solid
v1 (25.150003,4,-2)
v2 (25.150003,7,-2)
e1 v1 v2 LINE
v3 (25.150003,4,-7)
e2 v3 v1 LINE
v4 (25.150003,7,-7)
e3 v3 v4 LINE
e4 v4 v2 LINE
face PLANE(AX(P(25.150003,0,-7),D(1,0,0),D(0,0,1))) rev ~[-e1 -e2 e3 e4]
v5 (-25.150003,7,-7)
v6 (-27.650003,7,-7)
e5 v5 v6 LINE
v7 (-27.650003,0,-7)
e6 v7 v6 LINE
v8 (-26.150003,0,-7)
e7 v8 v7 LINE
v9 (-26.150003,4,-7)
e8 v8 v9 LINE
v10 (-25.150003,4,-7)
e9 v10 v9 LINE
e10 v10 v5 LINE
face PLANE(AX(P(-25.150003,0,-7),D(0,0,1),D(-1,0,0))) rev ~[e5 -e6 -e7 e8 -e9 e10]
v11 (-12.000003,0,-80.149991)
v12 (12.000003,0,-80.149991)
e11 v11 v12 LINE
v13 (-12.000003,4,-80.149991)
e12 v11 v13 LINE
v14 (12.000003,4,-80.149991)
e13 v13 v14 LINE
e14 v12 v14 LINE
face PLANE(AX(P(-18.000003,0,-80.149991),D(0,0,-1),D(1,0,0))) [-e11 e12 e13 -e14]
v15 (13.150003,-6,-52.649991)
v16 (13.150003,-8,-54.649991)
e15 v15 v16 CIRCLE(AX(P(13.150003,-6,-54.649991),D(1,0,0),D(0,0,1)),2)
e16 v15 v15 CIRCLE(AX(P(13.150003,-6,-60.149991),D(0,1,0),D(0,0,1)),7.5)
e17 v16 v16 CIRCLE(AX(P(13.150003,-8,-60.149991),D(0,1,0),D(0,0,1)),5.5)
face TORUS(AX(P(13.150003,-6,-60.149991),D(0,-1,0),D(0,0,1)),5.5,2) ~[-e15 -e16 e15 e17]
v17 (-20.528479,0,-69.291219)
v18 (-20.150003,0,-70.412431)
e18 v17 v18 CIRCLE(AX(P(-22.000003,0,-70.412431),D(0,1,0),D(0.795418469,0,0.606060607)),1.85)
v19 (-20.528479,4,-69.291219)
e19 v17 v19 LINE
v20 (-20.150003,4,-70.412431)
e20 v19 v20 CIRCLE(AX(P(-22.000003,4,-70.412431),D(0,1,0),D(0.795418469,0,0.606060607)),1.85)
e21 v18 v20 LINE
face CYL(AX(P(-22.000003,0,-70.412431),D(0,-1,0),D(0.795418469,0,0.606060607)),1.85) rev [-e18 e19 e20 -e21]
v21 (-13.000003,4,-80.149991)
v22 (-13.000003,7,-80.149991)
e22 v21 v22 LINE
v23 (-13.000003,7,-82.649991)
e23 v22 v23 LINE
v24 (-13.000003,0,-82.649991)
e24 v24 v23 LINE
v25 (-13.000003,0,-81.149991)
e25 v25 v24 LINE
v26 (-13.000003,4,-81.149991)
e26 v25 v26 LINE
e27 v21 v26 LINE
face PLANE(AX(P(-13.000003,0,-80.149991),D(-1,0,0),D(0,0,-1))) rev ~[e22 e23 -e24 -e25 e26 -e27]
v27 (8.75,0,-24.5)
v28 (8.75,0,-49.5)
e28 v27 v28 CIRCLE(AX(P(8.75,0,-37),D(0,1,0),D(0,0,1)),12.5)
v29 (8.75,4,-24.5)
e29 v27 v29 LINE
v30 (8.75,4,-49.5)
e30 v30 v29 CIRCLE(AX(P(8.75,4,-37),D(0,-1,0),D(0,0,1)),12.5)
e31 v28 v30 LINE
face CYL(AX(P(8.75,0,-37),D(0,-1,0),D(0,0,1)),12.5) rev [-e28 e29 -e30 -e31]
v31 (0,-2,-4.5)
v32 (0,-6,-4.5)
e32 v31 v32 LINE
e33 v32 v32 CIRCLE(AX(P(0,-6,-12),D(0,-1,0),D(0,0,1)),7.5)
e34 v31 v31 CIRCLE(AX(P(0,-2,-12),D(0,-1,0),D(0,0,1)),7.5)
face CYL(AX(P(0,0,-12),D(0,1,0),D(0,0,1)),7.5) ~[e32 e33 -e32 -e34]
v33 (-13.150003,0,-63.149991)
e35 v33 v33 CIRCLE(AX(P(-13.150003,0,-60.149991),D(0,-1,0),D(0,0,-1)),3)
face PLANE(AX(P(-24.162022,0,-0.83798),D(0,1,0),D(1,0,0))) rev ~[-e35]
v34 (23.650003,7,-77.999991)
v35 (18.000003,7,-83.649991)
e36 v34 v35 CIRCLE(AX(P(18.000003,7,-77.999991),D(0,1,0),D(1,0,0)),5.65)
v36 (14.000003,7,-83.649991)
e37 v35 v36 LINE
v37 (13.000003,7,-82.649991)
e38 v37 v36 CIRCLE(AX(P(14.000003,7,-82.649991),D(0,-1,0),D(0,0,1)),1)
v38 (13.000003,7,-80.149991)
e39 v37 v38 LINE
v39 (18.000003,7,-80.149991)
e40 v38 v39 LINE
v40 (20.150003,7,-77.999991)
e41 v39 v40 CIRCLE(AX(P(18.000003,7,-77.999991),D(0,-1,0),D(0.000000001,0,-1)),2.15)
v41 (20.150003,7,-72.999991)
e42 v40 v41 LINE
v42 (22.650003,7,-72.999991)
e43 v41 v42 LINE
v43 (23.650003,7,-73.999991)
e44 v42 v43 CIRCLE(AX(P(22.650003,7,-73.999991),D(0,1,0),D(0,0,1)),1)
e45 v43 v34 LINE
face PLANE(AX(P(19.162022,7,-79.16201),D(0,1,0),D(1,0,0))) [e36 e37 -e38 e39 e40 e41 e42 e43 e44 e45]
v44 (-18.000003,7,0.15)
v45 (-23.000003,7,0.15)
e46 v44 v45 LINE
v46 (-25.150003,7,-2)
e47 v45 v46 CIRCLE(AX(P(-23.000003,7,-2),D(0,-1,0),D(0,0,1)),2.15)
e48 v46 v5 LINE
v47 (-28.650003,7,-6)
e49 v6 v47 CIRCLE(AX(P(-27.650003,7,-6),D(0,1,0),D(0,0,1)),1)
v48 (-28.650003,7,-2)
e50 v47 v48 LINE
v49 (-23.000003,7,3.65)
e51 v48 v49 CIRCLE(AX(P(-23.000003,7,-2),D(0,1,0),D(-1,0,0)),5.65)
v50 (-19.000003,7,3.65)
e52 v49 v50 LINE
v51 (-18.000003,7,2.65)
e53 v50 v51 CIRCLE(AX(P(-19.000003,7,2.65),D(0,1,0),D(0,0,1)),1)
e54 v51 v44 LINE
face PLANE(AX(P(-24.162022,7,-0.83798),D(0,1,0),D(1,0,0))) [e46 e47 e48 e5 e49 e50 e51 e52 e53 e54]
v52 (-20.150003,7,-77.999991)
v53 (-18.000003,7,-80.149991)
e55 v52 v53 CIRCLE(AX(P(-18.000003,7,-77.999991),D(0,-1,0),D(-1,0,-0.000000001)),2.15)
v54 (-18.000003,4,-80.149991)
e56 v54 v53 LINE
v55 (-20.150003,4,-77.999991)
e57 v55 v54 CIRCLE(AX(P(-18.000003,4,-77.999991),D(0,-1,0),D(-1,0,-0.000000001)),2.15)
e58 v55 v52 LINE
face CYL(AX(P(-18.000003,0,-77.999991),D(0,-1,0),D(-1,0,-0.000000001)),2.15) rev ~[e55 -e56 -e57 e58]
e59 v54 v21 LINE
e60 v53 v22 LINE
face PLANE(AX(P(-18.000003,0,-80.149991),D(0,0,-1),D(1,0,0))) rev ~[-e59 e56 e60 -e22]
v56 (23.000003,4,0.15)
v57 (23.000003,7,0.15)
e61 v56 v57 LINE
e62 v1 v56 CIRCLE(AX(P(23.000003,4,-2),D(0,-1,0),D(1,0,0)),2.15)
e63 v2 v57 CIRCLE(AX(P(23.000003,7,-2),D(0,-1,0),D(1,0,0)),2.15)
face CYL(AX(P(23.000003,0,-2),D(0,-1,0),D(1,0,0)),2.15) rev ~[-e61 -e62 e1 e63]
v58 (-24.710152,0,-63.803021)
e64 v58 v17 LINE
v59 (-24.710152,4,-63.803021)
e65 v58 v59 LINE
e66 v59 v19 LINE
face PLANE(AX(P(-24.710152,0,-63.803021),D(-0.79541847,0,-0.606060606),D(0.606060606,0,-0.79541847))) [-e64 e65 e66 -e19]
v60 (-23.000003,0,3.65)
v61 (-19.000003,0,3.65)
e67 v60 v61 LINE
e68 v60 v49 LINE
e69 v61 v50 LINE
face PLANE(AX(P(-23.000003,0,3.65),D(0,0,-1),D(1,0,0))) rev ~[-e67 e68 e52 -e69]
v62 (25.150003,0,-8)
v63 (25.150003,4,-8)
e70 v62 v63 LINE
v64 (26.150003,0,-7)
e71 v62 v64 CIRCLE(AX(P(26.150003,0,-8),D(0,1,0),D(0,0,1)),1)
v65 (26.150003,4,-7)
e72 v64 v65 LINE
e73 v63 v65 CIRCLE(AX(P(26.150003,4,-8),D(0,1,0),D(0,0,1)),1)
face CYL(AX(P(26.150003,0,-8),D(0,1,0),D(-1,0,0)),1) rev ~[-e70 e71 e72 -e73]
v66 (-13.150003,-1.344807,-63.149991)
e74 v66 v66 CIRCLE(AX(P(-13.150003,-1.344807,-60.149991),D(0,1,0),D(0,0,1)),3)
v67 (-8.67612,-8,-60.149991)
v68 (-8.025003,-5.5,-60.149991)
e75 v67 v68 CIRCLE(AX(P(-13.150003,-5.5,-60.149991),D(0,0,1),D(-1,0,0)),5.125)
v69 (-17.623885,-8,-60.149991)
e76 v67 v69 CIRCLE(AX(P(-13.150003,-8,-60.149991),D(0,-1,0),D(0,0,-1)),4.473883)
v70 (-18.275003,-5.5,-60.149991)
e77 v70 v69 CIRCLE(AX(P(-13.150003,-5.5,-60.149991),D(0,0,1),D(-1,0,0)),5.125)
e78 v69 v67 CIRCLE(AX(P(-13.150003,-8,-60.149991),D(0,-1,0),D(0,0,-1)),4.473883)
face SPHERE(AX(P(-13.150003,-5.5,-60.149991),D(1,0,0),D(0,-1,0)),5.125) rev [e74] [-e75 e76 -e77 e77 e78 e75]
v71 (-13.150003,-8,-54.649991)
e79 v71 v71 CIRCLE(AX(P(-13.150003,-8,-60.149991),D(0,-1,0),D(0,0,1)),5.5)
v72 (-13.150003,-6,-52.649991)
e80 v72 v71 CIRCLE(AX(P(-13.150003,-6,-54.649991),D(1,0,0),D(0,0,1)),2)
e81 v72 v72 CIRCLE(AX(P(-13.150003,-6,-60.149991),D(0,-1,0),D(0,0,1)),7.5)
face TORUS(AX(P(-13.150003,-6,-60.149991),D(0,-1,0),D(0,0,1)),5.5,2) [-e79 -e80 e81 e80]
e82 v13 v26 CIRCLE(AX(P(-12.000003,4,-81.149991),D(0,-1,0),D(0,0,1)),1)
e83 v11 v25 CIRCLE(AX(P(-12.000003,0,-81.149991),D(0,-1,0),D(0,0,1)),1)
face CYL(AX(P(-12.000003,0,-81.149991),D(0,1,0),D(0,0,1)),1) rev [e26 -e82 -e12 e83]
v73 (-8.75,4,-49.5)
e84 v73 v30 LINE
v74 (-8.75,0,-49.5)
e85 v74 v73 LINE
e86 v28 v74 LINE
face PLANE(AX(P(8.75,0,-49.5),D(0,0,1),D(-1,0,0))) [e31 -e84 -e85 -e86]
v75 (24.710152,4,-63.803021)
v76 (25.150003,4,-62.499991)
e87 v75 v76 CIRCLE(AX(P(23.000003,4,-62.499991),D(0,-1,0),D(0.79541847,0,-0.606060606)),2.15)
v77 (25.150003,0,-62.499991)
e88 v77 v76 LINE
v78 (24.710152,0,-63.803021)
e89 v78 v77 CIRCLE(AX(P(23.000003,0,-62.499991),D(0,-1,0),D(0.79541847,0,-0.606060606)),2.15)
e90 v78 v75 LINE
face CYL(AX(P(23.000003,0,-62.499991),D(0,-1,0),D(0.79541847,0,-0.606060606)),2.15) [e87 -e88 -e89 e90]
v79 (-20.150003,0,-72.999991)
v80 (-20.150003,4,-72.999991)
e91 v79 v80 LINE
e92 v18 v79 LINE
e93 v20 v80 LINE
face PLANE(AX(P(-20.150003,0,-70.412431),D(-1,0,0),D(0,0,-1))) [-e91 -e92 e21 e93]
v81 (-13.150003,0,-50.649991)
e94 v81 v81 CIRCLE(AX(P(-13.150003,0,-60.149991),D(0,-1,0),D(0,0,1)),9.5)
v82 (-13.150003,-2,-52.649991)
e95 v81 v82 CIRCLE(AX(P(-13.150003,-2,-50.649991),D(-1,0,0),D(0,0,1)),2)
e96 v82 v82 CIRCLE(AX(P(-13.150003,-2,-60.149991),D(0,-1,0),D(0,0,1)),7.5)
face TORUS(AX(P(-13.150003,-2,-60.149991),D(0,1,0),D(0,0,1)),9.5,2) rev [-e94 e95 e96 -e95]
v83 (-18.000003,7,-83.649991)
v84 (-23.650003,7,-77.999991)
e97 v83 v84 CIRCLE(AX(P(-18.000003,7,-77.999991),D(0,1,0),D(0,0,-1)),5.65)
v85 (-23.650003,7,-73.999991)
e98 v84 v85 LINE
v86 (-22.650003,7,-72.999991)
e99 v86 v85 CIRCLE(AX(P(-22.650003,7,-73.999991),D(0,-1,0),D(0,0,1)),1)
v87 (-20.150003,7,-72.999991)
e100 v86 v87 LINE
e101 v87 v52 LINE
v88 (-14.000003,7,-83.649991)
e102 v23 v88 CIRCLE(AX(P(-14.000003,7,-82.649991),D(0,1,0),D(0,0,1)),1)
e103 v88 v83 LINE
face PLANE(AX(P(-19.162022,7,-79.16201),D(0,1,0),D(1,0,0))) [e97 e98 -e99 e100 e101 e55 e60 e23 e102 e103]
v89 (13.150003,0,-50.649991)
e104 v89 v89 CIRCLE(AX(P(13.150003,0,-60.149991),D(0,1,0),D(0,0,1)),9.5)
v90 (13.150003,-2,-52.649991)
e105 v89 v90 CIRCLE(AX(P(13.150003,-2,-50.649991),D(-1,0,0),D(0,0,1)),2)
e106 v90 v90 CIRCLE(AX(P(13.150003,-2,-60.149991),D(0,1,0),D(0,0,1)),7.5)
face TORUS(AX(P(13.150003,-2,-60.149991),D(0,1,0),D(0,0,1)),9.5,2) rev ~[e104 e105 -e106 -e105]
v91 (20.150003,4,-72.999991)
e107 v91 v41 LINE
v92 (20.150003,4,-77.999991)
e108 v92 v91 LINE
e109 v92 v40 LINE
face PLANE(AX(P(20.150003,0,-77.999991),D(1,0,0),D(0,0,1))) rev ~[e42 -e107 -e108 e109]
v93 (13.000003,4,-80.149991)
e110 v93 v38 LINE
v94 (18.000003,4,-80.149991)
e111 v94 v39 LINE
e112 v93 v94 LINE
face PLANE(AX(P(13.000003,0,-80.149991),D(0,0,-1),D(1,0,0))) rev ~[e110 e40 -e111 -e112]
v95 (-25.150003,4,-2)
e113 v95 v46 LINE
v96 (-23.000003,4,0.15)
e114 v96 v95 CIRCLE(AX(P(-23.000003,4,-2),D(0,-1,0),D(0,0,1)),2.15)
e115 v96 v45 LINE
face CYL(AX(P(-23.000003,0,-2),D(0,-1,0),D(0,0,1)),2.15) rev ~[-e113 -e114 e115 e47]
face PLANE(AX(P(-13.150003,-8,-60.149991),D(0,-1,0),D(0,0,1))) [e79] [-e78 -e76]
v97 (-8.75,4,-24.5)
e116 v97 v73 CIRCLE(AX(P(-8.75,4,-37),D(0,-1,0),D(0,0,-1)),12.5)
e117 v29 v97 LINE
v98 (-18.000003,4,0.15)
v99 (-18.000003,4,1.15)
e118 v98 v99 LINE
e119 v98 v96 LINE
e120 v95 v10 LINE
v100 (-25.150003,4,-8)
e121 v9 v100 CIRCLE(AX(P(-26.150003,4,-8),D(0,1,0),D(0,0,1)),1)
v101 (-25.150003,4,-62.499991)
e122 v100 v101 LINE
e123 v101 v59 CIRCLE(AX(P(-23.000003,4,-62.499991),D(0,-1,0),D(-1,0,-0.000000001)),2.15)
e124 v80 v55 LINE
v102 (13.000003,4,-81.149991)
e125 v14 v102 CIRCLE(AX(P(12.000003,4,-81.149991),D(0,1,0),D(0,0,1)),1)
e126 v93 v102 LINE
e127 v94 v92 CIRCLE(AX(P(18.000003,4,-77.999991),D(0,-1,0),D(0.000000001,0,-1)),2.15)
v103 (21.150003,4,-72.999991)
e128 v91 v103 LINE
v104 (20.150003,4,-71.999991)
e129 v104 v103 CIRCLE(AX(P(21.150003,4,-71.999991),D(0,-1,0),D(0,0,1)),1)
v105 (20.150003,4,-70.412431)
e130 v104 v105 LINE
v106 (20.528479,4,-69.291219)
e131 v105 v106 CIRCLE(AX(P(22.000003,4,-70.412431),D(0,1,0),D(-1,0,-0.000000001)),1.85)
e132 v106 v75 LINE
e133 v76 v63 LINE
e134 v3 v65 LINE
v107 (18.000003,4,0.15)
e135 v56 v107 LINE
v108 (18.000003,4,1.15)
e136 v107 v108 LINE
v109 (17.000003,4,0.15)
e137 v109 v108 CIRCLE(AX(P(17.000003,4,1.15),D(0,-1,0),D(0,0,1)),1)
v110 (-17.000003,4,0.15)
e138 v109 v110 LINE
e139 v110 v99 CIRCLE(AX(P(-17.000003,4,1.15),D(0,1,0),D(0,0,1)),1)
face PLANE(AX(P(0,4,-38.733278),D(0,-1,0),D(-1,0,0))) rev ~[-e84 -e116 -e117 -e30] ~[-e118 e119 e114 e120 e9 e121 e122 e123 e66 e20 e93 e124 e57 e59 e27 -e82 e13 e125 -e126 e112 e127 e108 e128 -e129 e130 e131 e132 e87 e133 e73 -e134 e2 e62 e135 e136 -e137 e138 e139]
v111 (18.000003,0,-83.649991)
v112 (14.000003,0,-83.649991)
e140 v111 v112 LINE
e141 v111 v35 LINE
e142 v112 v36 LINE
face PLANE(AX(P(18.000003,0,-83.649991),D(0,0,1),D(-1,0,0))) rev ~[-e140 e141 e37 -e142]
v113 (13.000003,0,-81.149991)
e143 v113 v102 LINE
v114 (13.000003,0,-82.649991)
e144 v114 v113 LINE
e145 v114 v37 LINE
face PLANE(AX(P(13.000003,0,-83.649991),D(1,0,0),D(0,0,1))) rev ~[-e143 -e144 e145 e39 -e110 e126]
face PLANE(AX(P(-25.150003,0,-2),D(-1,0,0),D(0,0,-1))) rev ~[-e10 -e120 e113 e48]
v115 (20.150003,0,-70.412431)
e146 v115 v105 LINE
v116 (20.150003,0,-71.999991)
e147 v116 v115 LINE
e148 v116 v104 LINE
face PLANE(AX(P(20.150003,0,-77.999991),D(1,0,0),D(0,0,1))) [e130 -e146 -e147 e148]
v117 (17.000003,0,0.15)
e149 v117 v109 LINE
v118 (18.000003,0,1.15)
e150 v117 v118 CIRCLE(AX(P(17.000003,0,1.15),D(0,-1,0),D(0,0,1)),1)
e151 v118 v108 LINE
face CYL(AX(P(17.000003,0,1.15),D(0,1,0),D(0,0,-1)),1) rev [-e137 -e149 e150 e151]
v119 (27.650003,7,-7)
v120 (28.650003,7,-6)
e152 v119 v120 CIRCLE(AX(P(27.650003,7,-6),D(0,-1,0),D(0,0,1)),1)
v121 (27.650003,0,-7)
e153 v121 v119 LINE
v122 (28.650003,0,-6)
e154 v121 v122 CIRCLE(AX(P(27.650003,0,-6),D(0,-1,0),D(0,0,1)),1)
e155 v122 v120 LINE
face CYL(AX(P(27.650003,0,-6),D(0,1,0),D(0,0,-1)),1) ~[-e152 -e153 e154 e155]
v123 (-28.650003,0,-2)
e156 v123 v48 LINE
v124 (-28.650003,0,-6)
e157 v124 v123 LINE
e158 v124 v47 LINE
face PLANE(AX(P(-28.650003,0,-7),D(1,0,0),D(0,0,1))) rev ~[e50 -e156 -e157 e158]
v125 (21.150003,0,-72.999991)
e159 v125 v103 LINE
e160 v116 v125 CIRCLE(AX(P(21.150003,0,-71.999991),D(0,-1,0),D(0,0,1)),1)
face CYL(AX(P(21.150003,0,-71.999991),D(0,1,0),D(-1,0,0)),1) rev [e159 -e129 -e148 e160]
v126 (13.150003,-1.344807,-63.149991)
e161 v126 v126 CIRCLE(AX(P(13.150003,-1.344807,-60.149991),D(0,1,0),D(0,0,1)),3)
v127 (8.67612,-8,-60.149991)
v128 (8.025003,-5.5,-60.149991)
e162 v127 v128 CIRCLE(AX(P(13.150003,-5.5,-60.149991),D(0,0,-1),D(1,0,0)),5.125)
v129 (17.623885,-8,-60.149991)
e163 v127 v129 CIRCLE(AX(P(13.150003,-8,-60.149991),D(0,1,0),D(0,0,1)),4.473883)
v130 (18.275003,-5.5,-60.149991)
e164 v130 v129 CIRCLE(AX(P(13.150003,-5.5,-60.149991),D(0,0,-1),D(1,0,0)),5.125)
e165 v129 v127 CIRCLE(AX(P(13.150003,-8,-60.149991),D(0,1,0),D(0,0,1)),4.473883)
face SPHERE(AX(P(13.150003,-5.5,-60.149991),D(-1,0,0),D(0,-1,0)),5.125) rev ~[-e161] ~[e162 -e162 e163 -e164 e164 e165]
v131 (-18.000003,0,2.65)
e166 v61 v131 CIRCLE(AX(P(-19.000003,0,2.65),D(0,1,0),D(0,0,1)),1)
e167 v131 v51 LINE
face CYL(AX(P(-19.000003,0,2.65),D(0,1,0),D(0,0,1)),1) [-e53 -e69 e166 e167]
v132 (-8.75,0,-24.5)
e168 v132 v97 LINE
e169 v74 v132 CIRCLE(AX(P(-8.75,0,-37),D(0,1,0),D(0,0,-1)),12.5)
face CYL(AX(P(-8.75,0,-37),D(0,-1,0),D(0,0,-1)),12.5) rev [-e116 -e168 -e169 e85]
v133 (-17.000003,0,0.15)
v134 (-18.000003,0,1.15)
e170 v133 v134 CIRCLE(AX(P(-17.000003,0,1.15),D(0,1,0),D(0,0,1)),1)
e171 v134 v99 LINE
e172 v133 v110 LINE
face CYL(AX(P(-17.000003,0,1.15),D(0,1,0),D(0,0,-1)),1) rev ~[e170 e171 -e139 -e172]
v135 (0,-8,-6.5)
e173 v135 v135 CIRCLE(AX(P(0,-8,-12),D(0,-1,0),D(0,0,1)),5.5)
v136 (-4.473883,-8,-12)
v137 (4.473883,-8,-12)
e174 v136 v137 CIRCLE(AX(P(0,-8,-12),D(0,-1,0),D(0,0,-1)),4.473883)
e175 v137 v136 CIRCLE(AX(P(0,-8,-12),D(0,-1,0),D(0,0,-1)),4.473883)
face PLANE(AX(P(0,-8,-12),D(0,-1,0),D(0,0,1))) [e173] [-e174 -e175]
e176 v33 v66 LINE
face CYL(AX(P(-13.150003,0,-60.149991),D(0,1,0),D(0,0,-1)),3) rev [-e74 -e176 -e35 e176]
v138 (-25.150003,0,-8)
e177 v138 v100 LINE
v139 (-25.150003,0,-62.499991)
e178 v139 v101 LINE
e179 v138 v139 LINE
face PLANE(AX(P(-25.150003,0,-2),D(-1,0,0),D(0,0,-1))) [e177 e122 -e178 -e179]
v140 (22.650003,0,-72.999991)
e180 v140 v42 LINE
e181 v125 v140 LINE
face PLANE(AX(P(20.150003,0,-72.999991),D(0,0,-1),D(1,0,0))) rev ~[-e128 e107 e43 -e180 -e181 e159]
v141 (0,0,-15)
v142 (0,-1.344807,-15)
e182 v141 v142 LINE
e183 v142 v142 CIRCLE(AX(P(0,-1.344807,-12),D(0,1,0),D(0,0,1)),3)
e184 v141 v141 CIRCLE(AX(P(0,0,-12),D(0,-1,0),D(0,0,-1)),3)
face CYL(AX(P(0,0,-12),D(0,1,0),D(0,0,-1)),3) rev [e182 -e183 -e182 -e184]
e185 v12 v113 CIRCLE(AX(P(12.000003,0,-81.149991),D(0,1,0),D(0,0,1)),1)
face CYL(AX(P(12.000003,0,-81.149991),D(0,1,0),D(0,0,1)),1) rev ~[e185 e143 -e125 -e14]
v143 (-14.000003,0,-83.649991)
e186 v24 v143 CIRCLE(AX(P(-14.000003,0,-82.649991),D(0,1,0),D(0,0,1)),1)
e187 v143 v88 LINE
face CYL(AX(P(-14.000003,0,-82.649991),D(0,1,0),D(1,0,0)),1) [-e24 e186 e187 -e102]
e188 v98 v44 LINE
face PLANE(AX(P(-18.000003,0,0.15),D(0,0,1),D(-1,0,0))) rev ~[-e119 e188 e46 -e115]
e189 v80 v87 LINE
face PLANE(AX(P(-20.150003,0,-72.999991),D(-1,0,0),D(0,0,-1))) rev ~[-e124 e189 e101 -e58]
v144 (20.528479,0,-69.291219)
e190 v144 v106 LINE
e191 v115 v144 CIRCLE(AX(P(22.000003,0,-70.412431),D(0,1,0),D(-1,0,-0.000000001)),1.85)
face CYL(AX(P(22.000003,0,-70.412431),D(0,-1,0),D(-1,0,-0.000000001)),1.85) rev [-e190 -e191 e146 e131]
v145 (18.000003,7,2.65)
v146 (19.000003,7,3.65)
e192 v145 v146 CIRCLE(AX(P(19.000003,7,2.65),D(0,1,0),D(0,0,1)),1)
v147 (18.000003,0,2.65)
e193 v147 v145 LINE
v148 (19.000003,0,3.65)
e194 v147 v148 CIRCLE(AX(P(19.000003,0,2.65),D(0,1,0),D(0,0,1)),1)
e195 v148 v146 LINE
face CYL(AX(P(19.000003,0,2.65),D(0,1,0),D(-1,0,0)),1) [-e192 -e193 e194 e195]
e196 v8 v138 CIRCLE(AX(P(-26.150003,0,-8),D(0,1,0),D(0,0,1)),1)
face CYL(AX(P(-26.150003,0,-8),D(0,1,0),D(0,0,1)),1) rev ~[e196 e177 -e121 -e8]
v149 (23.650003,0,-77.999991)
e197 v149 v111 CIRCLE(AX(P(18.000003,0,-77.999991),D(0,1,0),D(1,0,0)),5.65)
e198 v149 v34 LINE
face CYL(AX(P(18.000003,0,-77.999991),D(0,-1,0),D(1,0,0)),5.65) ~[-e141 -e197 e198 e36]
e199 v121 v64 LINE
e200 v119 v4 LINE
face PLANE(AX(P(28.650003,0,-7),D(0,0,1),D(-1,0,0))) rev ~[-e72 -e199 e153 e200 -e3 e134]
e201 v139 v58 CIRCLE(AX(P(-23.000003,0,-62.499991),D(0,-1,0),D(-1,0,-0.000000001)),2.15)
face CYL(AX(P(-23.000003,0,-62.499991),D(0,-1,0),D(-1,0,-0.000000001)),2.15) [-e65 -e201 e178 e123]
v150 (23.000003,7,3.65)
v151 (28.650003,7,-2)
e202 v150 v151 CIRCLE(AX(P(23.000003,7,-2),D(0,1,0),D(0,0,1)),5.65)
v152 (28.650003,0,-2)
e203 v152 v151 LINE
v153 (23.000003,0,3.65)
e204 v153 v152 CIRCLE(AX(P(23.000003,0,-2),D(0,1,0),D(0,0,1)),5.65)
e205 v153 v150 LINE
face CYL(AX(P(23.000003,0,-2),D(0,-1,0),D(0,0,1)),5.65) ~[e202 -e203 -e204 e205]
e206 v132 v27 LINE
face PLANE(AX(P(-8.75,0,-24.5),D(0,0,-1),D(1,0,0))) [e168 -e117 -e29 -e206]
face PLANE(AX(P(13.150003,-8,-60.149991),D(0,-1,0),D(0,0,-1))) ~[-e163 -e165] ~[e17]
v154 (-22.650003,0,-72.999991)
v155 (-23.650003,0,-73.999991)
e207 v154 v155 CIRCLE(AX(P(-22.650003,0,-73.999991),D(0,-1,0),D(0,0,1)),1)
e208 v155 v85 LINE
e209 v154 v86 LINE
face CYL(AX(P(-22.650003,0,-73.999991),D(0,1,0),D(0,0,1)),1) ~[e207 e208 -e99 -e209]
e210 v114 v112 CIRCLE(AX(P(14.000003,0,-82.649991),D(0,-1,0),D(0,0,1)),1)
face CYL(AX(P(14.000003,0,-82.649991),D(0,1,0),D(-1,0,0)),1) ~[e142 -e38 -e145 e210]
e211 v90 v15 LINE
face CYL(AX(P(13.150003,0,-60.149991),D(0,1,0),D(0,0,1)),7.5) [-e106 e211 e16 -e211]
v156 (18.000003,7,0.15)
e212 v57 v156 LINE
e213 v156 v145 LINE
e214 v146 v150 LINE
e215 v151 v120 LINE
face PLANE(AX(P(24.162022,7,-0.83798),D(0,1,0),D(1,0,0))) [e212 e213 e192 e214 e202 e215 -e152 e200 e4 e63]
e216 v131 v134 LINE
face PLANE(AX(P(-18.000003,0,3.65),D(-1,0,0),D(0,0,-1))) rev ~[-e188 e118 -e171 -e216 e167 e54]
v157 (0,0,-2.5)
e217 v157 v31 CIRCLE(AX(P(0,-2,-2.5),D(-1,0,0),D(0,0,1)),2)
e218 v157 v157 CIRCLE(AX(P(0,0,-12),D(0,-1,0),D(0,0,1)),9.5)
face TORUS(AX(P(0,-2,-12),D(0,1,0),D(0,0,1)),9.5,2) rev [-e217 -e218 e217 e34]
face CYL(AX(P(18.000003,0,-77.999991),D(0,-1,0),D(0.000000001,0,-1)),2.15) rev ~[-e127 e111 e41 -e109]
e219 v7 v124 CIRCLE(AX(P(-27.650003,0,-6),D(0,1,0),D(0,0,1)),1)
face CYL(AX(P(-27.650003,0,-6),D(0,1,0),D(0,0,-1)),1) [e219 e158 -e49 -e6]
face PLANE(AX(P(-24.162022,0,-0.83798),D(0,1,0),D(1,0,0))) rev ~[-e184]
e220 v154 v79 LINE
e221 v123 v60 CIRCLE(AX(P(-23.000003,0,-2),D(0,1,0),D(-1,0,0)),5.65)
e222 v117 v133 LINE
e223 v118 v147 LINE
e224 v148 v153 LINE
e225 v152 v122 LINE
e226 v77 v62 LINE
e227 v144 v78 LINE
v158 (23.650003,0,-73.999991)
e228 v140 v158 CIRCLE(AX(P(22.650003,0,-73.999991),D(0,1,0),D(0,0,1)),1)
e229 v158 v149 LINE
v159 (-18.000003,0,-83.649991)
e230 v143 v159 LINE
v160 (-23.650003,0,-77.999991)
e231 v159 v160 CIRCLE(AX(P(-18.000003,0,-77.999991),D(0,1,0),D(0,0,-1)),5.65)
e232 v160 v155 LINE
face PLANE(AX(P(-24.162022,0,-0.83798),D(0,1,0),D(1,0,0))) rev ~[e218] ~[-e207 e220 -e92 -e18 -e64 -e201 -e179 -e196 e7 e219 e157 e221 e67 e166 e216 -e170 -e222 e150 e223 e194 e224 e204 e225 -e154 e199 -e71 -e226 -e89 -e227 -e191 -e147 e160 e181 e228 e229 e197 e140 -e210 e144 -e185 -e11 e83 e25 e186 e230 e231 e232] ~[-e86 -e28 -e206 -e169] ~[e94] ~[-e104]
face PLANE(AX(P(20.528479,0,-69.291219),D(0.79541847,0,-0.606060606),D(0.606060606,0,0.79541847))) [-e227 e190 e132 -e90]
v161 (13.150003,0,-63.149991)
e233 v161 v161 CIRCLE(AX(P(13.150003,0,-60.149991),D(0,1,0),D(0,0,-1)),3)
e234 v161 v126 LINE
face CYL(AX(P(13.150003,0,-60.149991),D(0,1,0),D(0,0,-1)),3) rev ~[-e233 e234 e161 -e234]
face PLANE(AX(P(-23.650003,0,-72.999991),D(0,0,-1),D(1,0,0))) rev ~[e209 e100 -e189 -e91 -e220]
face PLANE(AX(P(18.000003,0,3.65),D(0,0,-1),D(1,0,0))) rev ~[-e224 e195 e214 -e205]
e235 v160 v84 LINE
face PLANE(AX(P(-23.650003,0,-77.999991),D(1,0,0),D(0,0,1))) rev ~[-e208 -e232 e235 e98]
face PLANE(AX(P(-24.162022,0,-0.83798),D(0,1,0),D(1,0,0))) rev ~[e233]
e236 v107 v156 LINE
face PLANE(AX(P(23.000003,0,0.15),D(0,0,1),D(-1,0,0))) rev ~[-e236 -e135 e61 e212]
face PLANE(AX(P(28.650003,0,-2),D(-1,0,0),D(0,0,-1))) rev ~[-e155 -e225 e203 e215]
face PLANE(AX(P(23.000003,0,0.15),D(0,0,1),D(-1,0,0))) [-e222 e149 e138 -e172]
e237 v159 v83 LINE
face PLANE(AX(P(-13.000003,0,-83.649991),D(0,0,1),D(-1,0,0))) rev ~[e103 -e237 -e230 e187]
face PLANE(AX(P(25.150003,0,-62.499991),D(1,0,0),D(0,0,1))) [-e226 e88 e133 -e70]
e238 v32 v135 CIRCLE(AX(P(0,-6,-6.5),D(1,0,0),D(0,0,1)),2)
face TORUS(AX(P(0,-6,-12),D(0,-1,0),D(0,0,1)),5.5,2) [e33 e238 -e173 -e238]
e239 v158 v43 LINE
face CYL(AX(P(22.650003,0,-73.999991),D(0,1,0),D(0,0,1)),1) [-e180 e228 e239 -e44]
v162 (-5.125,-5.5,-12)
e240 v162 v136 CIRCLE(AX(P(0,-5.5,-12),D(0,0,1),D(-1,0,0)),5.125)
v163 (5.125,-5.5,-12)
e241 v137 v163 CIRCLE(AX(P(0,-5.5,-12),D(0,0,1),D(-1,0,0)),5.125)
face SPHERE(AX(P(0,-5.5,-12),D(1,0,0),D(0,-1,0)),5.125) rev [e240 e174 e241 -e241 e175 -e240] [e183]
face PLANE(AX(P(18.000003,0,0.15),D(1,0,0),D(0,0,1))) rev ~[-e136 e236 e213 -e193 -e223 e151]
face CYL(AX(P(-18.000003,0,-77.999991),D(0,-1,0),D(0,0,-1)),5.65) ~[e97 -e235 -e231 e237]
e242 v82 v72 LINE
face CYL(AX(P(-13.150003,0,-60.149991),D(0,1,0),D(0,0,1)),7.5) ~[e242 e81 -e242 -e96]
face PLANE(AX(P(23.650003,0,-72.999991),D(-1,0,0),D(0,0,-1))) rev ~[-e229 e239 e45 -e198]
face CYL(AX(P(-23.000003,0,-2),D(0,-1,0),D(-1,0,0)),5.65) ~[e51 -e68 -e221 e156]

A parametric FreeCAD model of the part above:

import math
import FreeCAD as App
import Part
import Sketcher
Q = App.Units.Quantity


def edges_at(feature, points):
    """Names of the edges that pass closest to the given points."""
    edges = feature.Shape.Edges
    near = lambda p: min(range(len(edges)), key=lambda i: edges[i].distToShape(Part.Vertex(*p))[0])
    return sorted({f"Edge{near(p) + 1}" for p in points})

doc = App.newDocument("Part")
body = doc.addObject("PartDesign::Body", "Body")

# Sketch on XZ plane
sketch1 = body.newObject("Sketcher::SketchObject", "Sketch")
sketch1.AttachmentSupport = (doc.getObject("XZ_Plane"), [""])
sketch1.MapMode = "FlatFace"
sketch1.addGeometry(Part.LineSegment(App.Vector(18, -80.1, 0), App.Vector(-18, -80.1, 0)), False)
sketch1.addGeometry(Part.ArcOfCircle(Part.Circle(App.Vector(-18, -78, 0), App.Vector(0, 0, 1), 2.2), math.radians(-180), math.radians(-90)), False)
sketch1.addGeometry(Part.LineSegment(App.Vector(-20.2, -78, 0), App.Vector(-20.2, -70.4, 0)), False)
sketch1.addGeometry(Part.ArcOfCircle(Part.Circle(App.Vector(-22, -70.4, 0), App.Vector(0, 0, 1), 1.8), math.radians(0), math.radians(37)), False)
sketch1.addGeometry(Part.LineSegment(App.Vector(-20.5, -69.3, 0), App.Vector(-24.7, -63.8, 0)), False)
sketch1.addGeometry(Part.ArcOfCircle(Part.Circle(App.Vector(-23, -62.5, 0), App.Vector(0, 0, 1), 2.2), math.radians(-180), math.radians(-143)), False)
sketch1.addGeometry(Part.LineSegment(App.Vector(-25.2, -62.5, 0), App.Vector(-25.2, -2, 0)), False)
sketch1.addGeometry(Part.ArcOfCircle(Part.Circle(App.Vector(-23, -2, 0), App.Vector(0, 0, 1), 2.1), math.radians(90), math.radians(180)), False)
sketch1.addGeometry(Part.LineSegment(App.Vector(-23, 0.1, 0), App.Vector(23, 0.1, 0)), False)
sketch1.addGeometry(Part.ArcOfCircle(Part.Circle(App.Vector(23, -2, 0), App.Vector(0, 0, 1), 2.1), math.radians(0), math.radians(90)), False)
sketch1.addGeometry(Part.LineSegment(App.Vector(25.2, -2, 0), App.Vector(25.2, -62.5, 0)), False)
sketch1.addGeometry(Part.ArcOfCircle(Part.Circle(App.Vector(23, -62.5, 0), App.Vector(0, 0, 1), 2.2), math.radians(-37), math.radians(0)), False)
sketch1.addGeometry(Part.LineSegment(App.Vector(24.7, -63.8, 0), App.Vector(20.5, -69.3, 0)), False)
sketch1.addGeometry(Part.ArcOfCircle(Part.Circle(App.Vector(22, -70.4, 0), App.Vector(0, 0, 1), 1.8), math.radians(143), math.radians(180)), False)
sketch1.addGeometry(Part.LineSegment(App.Vector(20.2, -70.4, 0), App.Vector(20.2, -78, 0)), False)
sketch1.addGeometry(Part.ArcOfCircle(Part.Circle(App.Vector(18, -78, 0), App.Vector(0, 0, 1), 2.2), math.radians(-90), math.radians(0)), False)
sketch1.addConstraint(Sketcher.Constraint("Tangent", 0, 2, 1, 2))
sketch1.addConstraint(Sketcher.Constraint("Tangent", 1, 1, 2, 1))
sketch1.addConstraint(Sketcher.Constraint("Tangent", 2, 2, 3, 1))
sketch1.addConstraint(Sketcher.Constraint("Tangent", 3, 2, 4, 1))
sketch1.addConstraint(Sketcher.Constraint("Tangent", 4, 2, 5, 2))
sketch1.addConstraint(Sketcher.Constraint("Tangent", 5, 1, 6, 1))
sketch1.addConstraint(Sketcher.Constraint("Tangent", 6, 2, 7, 2))
sketch1.addConstraint(Sketcher.Constraint("Tangent", 7, 1, 8, 1))
sketch1.addConstraint(Sketcher.Constraint("Tangent", 8, 2, 9, 2))
sketch1.addConstraint(Sketcher.Constraint("Tangent", 9, 1, 10, 1))
sketch1.addConstraint(Sketcher.Constraint("Tangent", 10, 2, 11, 2))
sketch1.addConstraint(Sketcher.Constraint("Tangent", 11, 1, 12, 1))
sketch1.addConstraint(Sketcher.Constraint("Tangent", 12, 2, 13, 1))
sketch1.addConstraint(Sketcher.Constraint("Tangent", 13, 2, 14, 1))
sketch1.addConstraint(Sketcher.Constraint("Tangent", 14, 2, 15, 2))
sketch1.addConstraint(Sketcher.Constraint("Tangent", 15, 1, 0, 1))
sketch1.addConstraint(Sketcher.Constraint("Horizontal", 0))
sketch1.addConstraint(Sketcher.Constraint("Vertical", 2))
sketch1.addConstraint(Sketcher.Constraint("Vertical", 6))
sketch1.addConstraint(Sketcher.Constraint("Horizontal", 8))
sketch1.addConstraint(Sketcher.Constraint("Vertical", 10))
sketch1.addConstraint(Sketcher.Constraint("Vertical", 14))
sketch1.addConstraint(Sketcher.Constraint("Equal", 1, 5))
sketch1.addConstraint(Sketcher.Constraint("Equal", 5, 7))
sketch1.addConstraint(Sketcher.Constraint("Equal", 7, 9))
sketch1.addConstraint(Sketcher.Constraint("Equal", 9, 11))
sketch1.addConstraint(Sketcher.Constraint("Equal", 3, 13))
sketch1.addConstraint(Sketcher.Constraint("Equal", 11, 15))
sketch1.addConstraint(Sketcher.Constraint("Symmetric", 5, 3, 11, 3, -2))
sketch1.addConstraint(Sketcher.Constraint("Symmetric", 3, 3, 13, 3, -2))
sketch1.addConstraint(Sketcher.Constraint("Radius", 1, Q("2.15 mm")))
sketch1.addConstraint(Sketcher.Constraint("Radius", 3, Q("1.85 mm")))
sketch1.addConstraint(Sketcher.Constraint("DistanceY", 7, 3, -1, 1, Q("2 mm")))
sketch1.addConstraint(Sketcher.Constraint("DistanceX", 5, 3, 3, 3, Q("1 mm")))
sketch1.addConstraint(Sketcher.Constraint("DistanceY", 1, 3, 5, 3, Q("15.5 mm")))
sketch1.addConstraint(Sketcher.Constraint("DistanceY", 2, 1, 2, 2, Q("7.58756 mm")))
sketch1.addConstraint(Sketcher.Constraint("DistanceY", 6, 1, 6, 2, Q("60.499991 mm")))
sketch1.addConstraint(Sketcher.Constraint("DistanceX", 0, 2, 0, 1, Q("36.000005 mm")))
pad1 = body.newObject("PartDesign::Pad", "Pad")
pad1.Profile = sketch1
pad1.Length = 4
pad1.Reversed = True

# Sketch on XZ plane
sketch2 = body.newObject("Sketcher::SketchObject", "Sketch001")
sketch2.AttachmentSupport = (doc.getObject("XZ_Plane"), [""])
sketch2.MapMode = "FlatFace"
sketch2.addGeometry(Part.LineSegment(App.Vector(-25.2, -2, 0), App.Vector(-25.2, -7, 0)), False)
sketch2.addGeometry(Part.LineSegment(App.Vector(-25.2, -7, 0), App.Vector(-28.7, -7, 0)), False)
sketch2.addGeometry(Part.LineSegment(App.Vector(-28.7, -7, 0), App.Vector(-28.7, -2, 0)), False)
sketch2.addGeometry(Part.ArcOfCircle(Part.Circle(App.Vector(-23, -2, 0), App.Vector(0, 0, 1), 5.7), math.radians(90), math.radians(180)), False)
sketch2.addGeometry(Part.LineSegment(App.Vector(-23, 3.6, 0), App.Vector(-18, 3.6, 0)), False)
sketch2.addGeometry(Part.LineSegment(App.Vector(-18, 3.6, 0), App.Vector(-18, 0.1, 0)), False)
sketch2.addGeometry(Part.LineSegment(App.Vector(-18, 0.1, 0), App.Vector(-23, 0.1, 0)), False)
sketch2.addGeometry(Part.ArcOfCircle(Part.Circle(App.Vector(-23, -2, 0), App.Vector(0, 0, 1), 2.1), math.radians(90), math.radians(180)), False)
sketch2.addGeometry(Part.LineSegment(App.Vector(23, 0.1, 0), App.Vector(18, 0.1, 0)), False)
sketch2.addGeometry(Part.LineSegment(App.Vector(18, 0.1, 0), App.Vector(18, 3.6, 0)), False)
sketch2.addGeometry(Part.LineSegment(App.Vector(18, 3.6, 0), App.Vector(23, 3.6, 0)), False)
sketch2.addGeometry(Part.ArcOfCircle(Part.Circle(App.Vector(23, -2, 0), App.Vector(0, 0, 1), 5.7), math.radians(0), math.radians(90)), False)
sketch2.addGeometry(Part.LineSegment(App.Vector(28.7, -2, 0), App.Vector(28.7, -7, 0)), False)
sketch2.addGeometry(Part.LineSegment(App.Vector(28.7, -7, 0), App.Vector(25.2, -7, 0)), False)
sketch2.addGeometry(Part.LineSegment(App.Vector(25.2, -7, 0), App.Vector(25.2, -2, 0)), False)
sketch2.addGeometry(Part.ArcOfCircle(Part.Circle(App.Vector(23, -2, 0), App.Vector(0, 0, 1), 2.1), math.radians(0), math.radians(90)), False)
sketch2.addGeometry(Part.LineSegment(App.Vector(13, -83.6, 0), App.Vector(13, -80.1, 0)), False)
sketch2.addGeometry(Part.LineSegment(App.Vector(13, -80.1, 0), App.Vector(18, -80.1, 0)), False)
sketch2.addGeometry(Part.ArcOfCircle(Part.Circle(App.Vector(18, -78, 0), App.Vector(0, 0, 1), 2.2), math.radians(-90), math.radians(0)), False)
sketch2.addGeometry(Part.LineSegment(App.Vector(20.2, -78, 0), App.Vector(20.2, -73, 0)), False)
sketch2.addGeometry(Part.LineSegment(App.Vector(20.2, -73, 0), App.Vector(23.7, -73, 0)), False)
sketch2.addGeometry(Part.LineSegment(App.Vector(23.7, -73, 0), App.Vector(23.7, -78, 0)), False)
sketch2.addGeometry(Part.ArcOfCircle(Part.Circle(App.Vector(18, -78, 0), App.Vector(0, 0, 1), 5.7), math.radians(-90), math.radians(0)), False)
sketch2.addGeometry(Part.LineSegment(App.Vector(18, -83.6, 0), App.Vector(13, -83.6, 0)), False)
sketch2.addGeometry(Part.LineSegment(App.Vector(-23.7, -73, 0), App.Vector(-20.2, -73, 0)), False)
sketch2.addGeometry(Part.LineSegment(App.Vector(-20.2, -73, 0), App.Vector(-20.2, -78, 0)), False)
sketch2.addGeometry(Part.ArcOfCircle(Part.Circle(App.Vector(-18, -78, 0), App.Vector(0, 0, 1), 2.2), math.radians(-180), math.radians(-90)), False)
sketch2.addGeometry(Part.LineSegment(App.Vector(-18, -80.1, 0), App.Vector(-13, -80.1, 0)), False)
sketch2.addGeometry(Part.LineSegment(App.Vector(-13, -80.1, 0), App.Vector(-13, -83.6, 0)), False)
sketch2.addGeometry(Part.LineSegment(App.Vector(-13, -83.6, 0), App.Vector(-18, -83.6, 0)), False)
sketch2.addGeometry(Part.ArcOfCircle(Part.Circle(App.Vector(-18, -78, 0), App.Vector(0, 0, 1), 5.7), math.radians(-180), math.radians(-90)), False)
sketch2.addGeometry(Part.LineSegment(App.Vector(-23.7, -78, 0), App.Vector(-23.7, -73, 0)), False)
sketch2.addConstraint(Sketcher.Constraint("Coincident", 0, 2, 1, 1))
sketch2.addConstraint(Sketcher.Constraint("Coincident", 1, 2, 2, 1))
sketch2.addConstraint(Sketcher.Constraint("Tangent", 2, 2, 3, 2))
sketch2.addConstraint(Sketcher.Constraint("Tangent", 3, 1, 4, 1))
sketch2.addConstraint(Sketcher.Constraint("Coincident", 4, 2, 5, 1))
sketch2.addConstraint(Sketcher.Constraint("Coincident", 5, 2, 6, 1))
sketch2.addConstraint(Sketcher.Constraint("Tangent", 6, 2, 7, 1))
sketch2.addConstraint(Sketcher.Constraint("Tangent", 7, 2, 0, 1))
sketch2.addConstraint(Sketcher.Constraint("Coincident", 8, 2, 9, 1))
sketch2.addConstraint(Sketcher.Constraint("Coincident", 9, 2, 10, 1))
sketch2.addConstraint(Sketcher.Constraint("Tangent", 10, 2, 11, 2))
sketch2.addConstraint(Sketcher.Constraint("Tangent", 11, 1, 12, 1))
sketch2.addConstraint(Sketcher.Constraint("Coincident", 12, 2, 13, 1))
sketch2.addConstraint(Sketcher.Constraint("Coincident", 13, 2, 14, 1))
sketch2.addConstraint(Sketcher.Constraint("Tangent", 14, 2, 15, 1))
sketch2.addConstraint(Sketcher.Constraint("Tangent", 15, 2, 8, 1))
sketch2.addConstraint(Sketcher.Constraint("Coincident", 16, 2, 17, 1))
sketch2.addConstraint(Sketcher.Constraint("Tangent", 17, 2, 18, 1))
sketch2.addConstraint(Sketcher.Constraint("Tangent", 18, 2, 19, 1))
sketch2.addConstraint(Sketcher.Constraint("Coincident", 19, 2, 20, 1))
sketch2.addConstraint(Sketcher.Constraint("Coincident", 20, 2, 21, 1))
sketch2.addConstraint(Sketcher.Constraint("Tangent", 21, 2, 22, 2))
sketch2.addConstraint(Sketcher.Constraint("Tangent", 22, 1, 23, 1))
sketch2.addConstraint(Sketcher.Constraint("Coincident", 23, 2, 16, 1))
sketch2.addConstraint(Sketcher.Constraint("Coincident", 24, 2, 25, 1))
sketch2.addConstraint(Sketcher.Constraint("Tangent", 25, 2, 26, 1))
sketch2.addConstraint(Sketcher.Constraint("Tangent", 26, 2, 27, 1))
sketch2.addConstraint(Sketcher.Constraint("Coincident", 27, 2, 28, 1))
sketch2.addConstraint(Sketcher.Constraint("Coincident", 28, 2, 29, 1))
sketch2.addConstraint(Sketcher.Constraint("Tangent", 29, 2, 30, 2))
sketch2.addConstraint(Sketcher.Constraint("Tangent", 30, 1, 31, 1))
sketch2.addConstraint(Sketcher.Constraint("Coincident", 31, 2, 24, 1))
sketch2.addConstraint(Sketcher.Constraint("Vertical", 0))
sketch2.addConstraint(Sketcher.Constraint("Horizontal", 1))
sketch2.addConstraint(Sketcher.Constraint("Vertical", 2))
sketch2.addConstraint(Sketcher.Constraint("Horizontal", 4))
sketch2.addConstraint(Sketcher.Constraint("Vertical", 5))
sketch2.addConstraint(Sketcher.Constraint("Horizontal", 6))
sketch2.addConstraint(Sketcher.Constraint("Horizontal", 8))
sketch2.addConstraint(Sketcher.Constraint("Vertical", 9))
sketch2.addConstraint(Sketcher.Constraint("Horizontal", 10))
sketch2.addConstraint(Sketcher.Constraint("Vertical", 12))
sketch2.addConstraint(Sketcher.Constraint("Horizontal", 13))
sketch2.addConstraint(Sketcher.Constraint("Vertical", 14))
sketch2.addConstraint(Sketcher.Constraint("Vertical", 16))
sketch2.addConstraint(Sketcher.Constraint("Horizontal", 17))
sketch2.addConstraint(Sketcher.Constraint("Vertical", 19))
sketch2.addConstraint(Sketcher.Constraint("Horizontal", 20))
sketch2.addConstraint(Sketcher.Constraint("Vertical", 21))
sketch2.addConstraint(Sketcher.Constraint("Horizontal", 23))
sketch2.addConstraint(Sketcher.Constraint("Horizontal", 24))
sketch2.addConstraint(Sketcher.Constraint("Vertical", 25))
sketch2.addConstraint(Sketcher.Constraint("Horizontal", 27))
sketch2.addConstraint(Sketcher.Constraint("Vertical", 28))
sketch2.addConstraint(Sketcher.Constraint("Horizontal", 29))
sketch2.addConstraint(Sketcher.Constraint("Vertical", 31))
sketch2.addConstraint(Sketcher.Constraint("Coincident", 7, 3, 3, 3))
sketch2.addConstraint(Sketcher.Constraint("Coincident", 15, 3, 11, 3))
sketch2.addConstraint(Sketcher.Constraint("Coincident", 22, 3, 18, 3))
sketch2.addConstraint(Sketcher.Constraint("Coincident", 30, 3, 26, 3))
sketch2.addConstraint(Sketcher.Constraint("Equal", 3, 11))
sketch2.addConstraint(Sketcher.Constraint("Equal", 7, 15))
sketch2.addConstraint(Sketcher.Constraint("Equal", 15, 18))
sketch2.addConstraint(Sketcher.Constraint("Equal", 11, 22))
sketch2.addConstraint(Sketcher.Constraint("Equal", 18, 26))
sketch2.addConstraint(Sketcher.Constraint("Equal", 22, 30))
sketch2.addConstraint(Sketcher.Constraint("Symmetric", 3, 3, 11, 3, -2))
sketch2.addConstraint(Sketcher.Constraint("Symmetric", 18, 3, 26, 3, -2))
sketch2.addConstraint(Sketcher.Constraint("Horizontal", 1, 2, 12, 2))
sketch2.addConstraint(Sketcher.Constraint("Horizontal", 20, 2, 24, 2))
sketch2.addConstraint(Sketcher.Constraint("Vertical", 30, 3, 4, 2))
sketch2.addConstraint(Sketcher.Constraint("Vertical", 22, 3, 8, 2))
sketch2.addConstraint(Sketcher.Constraint("Equal", 10, 17))
sketch2.addConstraint(Sketcher.Constraint("Equal", 23, 27))
sketch2.addConstraint(Sketcher.Constraint("Equal", 29, 0))
sketch2.addConstraint(Sketcher.Constraint("Equal", 14, 19))
sketch2.addConstraint(Sketcher.Constraint("DistanceX", 4, 1, 4, 2, Q("5 mm")))
sketch2.addConstraint(Sketcher.Constraint("Radius", 3, Q("5.65 mm")))
sketch2.addConstraint(Sketcher.Constraint("Radius", 7, Q("2.15 mm")))
sketch2.addConstraint(Sketcher.Constraint("DistanceY", 3, 3, -1, 1, Q("2 mm")))
sketch2.addConstraint(Sketcher.Constraint("DistanceY", 18, 3, -1, 1, Q("77.999991 mm")))
sketch2.addConstraint(Sketcher.Constraint("DistanceX", 3, 3, -1, 1, Q("23.000003 mm")))
pad2 = body.newObject("PartDesign::Pad", "Pad001")
pad2.Profile = sketch2
pad2.Length = 7
pad2.Reversed = True
doc.recompute()

fillet = body.newObject("PartDesign::Fillet", "Fillet")
fillet.Base = (pad2, edges_at(pad2, [
    (13, 2, -80.15),
    (23.65, 3.5, -73),
    (13, 3.5, -83.65),
    (20.15, 2, -73),
    (-13, 3.5, -83.65),
    (-23.65, 3.5, -73),
    (-13, 2, -80.15),
    (-18, 2, 0.15),
    (-28.65, 3.5, -7),
    (-18, 3.5, 3.65),
    (-25.15, 2, -7),
    (25.15, 2, -7),
    (18, 3.5, 3.65),
    (28.65, 3.5, -7),
    (18, 2, 0.15),
]))
fillet.Radius = 1

# Sketch on XZ plane
sketch3 = body.newObject("Sketcher::SketchObject", "Sketch002")
sketch3.AttachmentSupport = (doc.getObject("XZ_Plane"), [""])
sketch3.MapMode = "FlatFace"
sketch3.addGeometry(Part.Circle(App.Vector(0, -12, 0), App.Vector(0, 0, 1), 7.5), False)
sketch3.addGeometry(Part.Circle(App.Vector(0, -12, 0), App.Vector(0, 0, 1), 3), False)
sketch3.addConstraint(Sketcher.Constraint("Coincident", 1, 3, 0, 3))
sketch3.addConstraint(Sketcher.Constraint("PointOnObject", 0, 3, -2))
sketch3.addConstraint(Sketcher.Constraint("Diameter", 0, Q("15 mm")))
sketch3.addConstraint(Sketcher.Constraint("Diameter", 1, Q("6 mm")))
sketch3.addConstraint(Sketcher.Constraint("DistanceY", 0, 3, -1, 1, Q("12 mm")))
pad3 = body.newObject("PartDesign::Pad", "Pad002")
pad3.Profile = sketch3
pad3.Length = 8

# Sketch on XZ plane
sketch4 = body.newObject("Sketcher::SketchObject", "Sketch003")
sketch4.AttachmentSupport = (doc.getObject("XZ_Plane"), [""])
sketch4.MapMode = "FlatFace"
sketch4.addGeometry(Part.Circle(App.Vector(-13.2, -60.1, 0), App.Vector(0, 0, 1), 7.5), False)
sketch4.addGeometry(Part.Circle(App.Vector(-13.2, -60.1, 0), App.Vector(0, 0, 1), 3), False)
sketch4.addConstraint(Sketcher.Constraint("Coincident", 1, 3, 0, 3))
sketch4.addConstraint(Sketcher.Constraint("Diameter", 0, Q("15 mm")))
sketch4.addConstraint(Sketcher.Constraint("Diameter", 1, Q("6 mm")))
sketch4.addConstraint(Sketcher.Constraint("DistanceY", 0, 3, -1, 1, Q("60.149991 mm")))
sketch4.addConstraint(Sketcher.Constraint("DistanceX", 0, 3, -1, 1, Q("13.150003 mm")))
pad4 = body.newObject("PartDesign::Pad", "Pad003")
pad4.Profile = sketch4
pad4.Length = 8

# Sketch on XY plane
sketch5 = body.newObject("Sketcher::SketchObject", "Sketch004")
sketch5.AttachmentSupport = (doc.getObject("XY_Plane"), [""])
sketch5.MapMode = "FlatFace"
sketch5.AttachmentOffset = App.Placement(App.Vector(0, 0, -12), App.Rotation())
sketch5.addGeometry(Part.LineSegment(App.Vector(5, -6, 0), App.Vector(-5, -6, 0)), False)
sketch5.addGeometry(Part.ArcOfCircle(Part.Circle(App.Vector(0, -6, 0), App.Vector(0, 0, 1), 5), math.radians(180), math.radians(360)), False)
sketch5.addGeometry(Part.LineSegment(App.Vector(5, -6, 0), App.Vector(-5, -6, 0)), True)  # axis
sketch5.addConstraint(Sketcher.Constraint("Coincident", 0, 1, 1, 2))
sketch5.addConstraint(Sketcher.Constraint("Coincident", 1, 1, 0, 2))
sketch5.addConstraint(Sketcher.Constraint("Horizontal", 0))
sketch5.addConstraint(Sketcher.Constraint("Horizontal", 2))
sketch5.addConstraint(Sketcher.Constraint("Coincident", 2, 1, 0, 1))
sketch5.addConstraint(Sketcher.Constraint("PointOnObject", 1, 3, -2))
sketch5.addConstraint(Sketcher.Constraint("Horizontal", 1, 3, 0, 1))
sketch5.addConstraint(Sketcher.Constraint("Equal", 0, 2))
sketch5.addConstraint(Sketcher.Constraint("Radius", 1, Q("5.125 mm")))
sketch5.addConstraint(Sketcher.Constraint("DistanceY", 1, 3, -1, 1, Q("5.5 mm")))
groove = body.newObject("PartDesign::Groove", "Groove")
groove.Profile = sketch5
groove.ReferenceAxis = (sketch5, ["Axis0"])
groove.Angle = 360

# Sketch on XY plane
sketch6 = body.newObject("Sketcher::SketchObject", "Sketch005")
sketch6.AttachmentSupport = (doc.getObject("XY_Plane"), [""])
sketch6.MapMode = "FlatFace"
sketch6.AttachmentOffset = App.Placement(App.Vector(0, 0, -60.149991), App.Rotation())
sketch6.addGeometry(Part.LineSegment(App.Vector(-8, -6, 0), App.Vector(-18, -6, 0)), False)
sketch6.addGeometry(Part.ArcOfCircle(Part.Circle(App.Vector(-13, -6, 0), App.Vector(0, 0, 1), 5), math.radians(180), math.radians(360)), False)
sketch6.addGeometry(Part.LineSegment(App.Vector(-8, -6, 0), App.Vector(-18, -6, 0)), True)  # axis
sketch6.addConstraint(Sketcher.Constraint("Coincident", 0, 1, 1, 2))
sketch6.addConstraint(Sketcher.Constraint("Coincident", 1, 1, 0, 2))
sketch6.addConstraint(Sketcher.Constraint("Horizontal", 0))
sketch6.addConstraint(Sketcher.Constraint("Horizontal", 2))
sketch6.addConstraint(Sketcher.Constraint("Coincident", 2, 1, 0, 1))
sketch6.addConstraint(Sketcher.Constraint("Horizontal", 1, 3, 0, 1))
sketch6.addConstraint(Sketcher.Constraint("Equal", 0, 2))
sketch6.addConstraint(Sketcher.Constraint("Radius", 1, Q("5.125 mm")))
sketch6.addConstraint(Sketcher.Constraint("DistanceY", 1, 3, -1, 1, Q("5.5 mm")))
sketch6.addConstraint(Sketcher.Constraint("DistanceX", 1, 3, -1, 1, Q("13.150003 mm")))
groove2 = body.newObject("PartDesign::Groove", "Groove001")
groove2.Profile = sketch6
groove2.ReferenceAxis = (sketch6, ["Axis0"])
groove2.Angle = 360
doc.recompute()

fillet2 = body.newObject("PartDesign::Fillet", "Fillet001")
fillet2.Base = (groove2, edges_at(groove2, [(0, 0, -19.5), (0, -8, -19.5)]))
fillet2.Radius = 2
doc.recompute()

fillet3 = body.newObject("PartDesign::Fillet", "Fillet002")
fillet3.Base = (fillet2, edges_at(fillet2, [(-13.15, 0, -67.65), (-13.15, -8, -67.65)]))
fillet3.Radius = 2
doc.recompute()

mirrored = body.newObject("PartDesign::Mirrored", "Mirrored")
mirrored.Originals = [pad4, groove2]
mirrored.MirrorPlane = (doc.getObject("YZ_Plane"), [""])
body.Tip = mirrored
doc.recompute()

fillet4 = body.newObject("PartDesign::Fillet", "Fillet003")
fillet4.Base = (mirrored, edges_at(mirrored, [(13.15, 0, -67.65), (13.15, -8, -67.65)]))
fillet4.Radius = 2

# Sketch on XZ plane
sketch7 = body.newObject("Sketcher::SketchObject", "Sketch006")
sketch7.AttachmentSupport = (doc.getObject("XZ_Plane"), [""])
sketch7.MapMode = "FlatFace"
sketch7.addGeometry(Part.LineSegment(App.Vector(9, -24, 0), App.Vector(-9, -24, 0)), False)
sketch7.addGeometry(Part.ArcOfCircle(Part.Circle(App.Vector(-9, -37, 0), App.Vector(0, 0, 1), 12), math.radians(90), math.radians(270)), False)
sketch7.addGeometry(Part.LineSegment(App.Vector(-9, -50, 0), App.Vector(9, -50, 0)), False)
sketch7.addGeometry(Part.ArcOfCircle(Part.Circle(App.Vector(9, -37, 0), App.Vector(0, 0, 1), 12), math.radians(-90), math.radians(90)), False)
sketch7.addConstraint(Sketcher.Constraint("Tangent", 0, 2, 1, 1))
sketch7.addConstraint(Sketcher.Constraint("Tangent", 1, 2, 2, 1))
sketch7.addConstraint(Sketcher.Constraint("Tangent", 2, 2, 3, 1))
sketch7.addConstraint(Sketcher.Constraint("Tangent", 3, 2, 0, 1))
sketch7.addConstraint(Sketcher.Constraint("Horizontal", 0))
sketch7.addConstraint(Sketcher.Constraint("Horizontal", 2))
sketch7.addConstraint(Sketcher.Constraint("Radius", 1, Q("12.5 mm")))
sketch7.addConstraint(Sketcher.Constraint("DistanceX", 0, 2, 0, 1, Q("17.5 mm")))
sketch7.addConstraint(Sketcher.Constraint("DistanceY", 1, 3, -1, 1, Q("37 mm")))
sketch7.addConstraint(Sketcher.Constraint("DistanceX", 1, 3, -1, 1, Q("8.75 mm")))
pocket1 = body.newObject("PartDesign::Pocket", "Pocket")
pocket1.Profile = sketch7
pocket1.Type = "UpToFirst"

doc.recompute()
